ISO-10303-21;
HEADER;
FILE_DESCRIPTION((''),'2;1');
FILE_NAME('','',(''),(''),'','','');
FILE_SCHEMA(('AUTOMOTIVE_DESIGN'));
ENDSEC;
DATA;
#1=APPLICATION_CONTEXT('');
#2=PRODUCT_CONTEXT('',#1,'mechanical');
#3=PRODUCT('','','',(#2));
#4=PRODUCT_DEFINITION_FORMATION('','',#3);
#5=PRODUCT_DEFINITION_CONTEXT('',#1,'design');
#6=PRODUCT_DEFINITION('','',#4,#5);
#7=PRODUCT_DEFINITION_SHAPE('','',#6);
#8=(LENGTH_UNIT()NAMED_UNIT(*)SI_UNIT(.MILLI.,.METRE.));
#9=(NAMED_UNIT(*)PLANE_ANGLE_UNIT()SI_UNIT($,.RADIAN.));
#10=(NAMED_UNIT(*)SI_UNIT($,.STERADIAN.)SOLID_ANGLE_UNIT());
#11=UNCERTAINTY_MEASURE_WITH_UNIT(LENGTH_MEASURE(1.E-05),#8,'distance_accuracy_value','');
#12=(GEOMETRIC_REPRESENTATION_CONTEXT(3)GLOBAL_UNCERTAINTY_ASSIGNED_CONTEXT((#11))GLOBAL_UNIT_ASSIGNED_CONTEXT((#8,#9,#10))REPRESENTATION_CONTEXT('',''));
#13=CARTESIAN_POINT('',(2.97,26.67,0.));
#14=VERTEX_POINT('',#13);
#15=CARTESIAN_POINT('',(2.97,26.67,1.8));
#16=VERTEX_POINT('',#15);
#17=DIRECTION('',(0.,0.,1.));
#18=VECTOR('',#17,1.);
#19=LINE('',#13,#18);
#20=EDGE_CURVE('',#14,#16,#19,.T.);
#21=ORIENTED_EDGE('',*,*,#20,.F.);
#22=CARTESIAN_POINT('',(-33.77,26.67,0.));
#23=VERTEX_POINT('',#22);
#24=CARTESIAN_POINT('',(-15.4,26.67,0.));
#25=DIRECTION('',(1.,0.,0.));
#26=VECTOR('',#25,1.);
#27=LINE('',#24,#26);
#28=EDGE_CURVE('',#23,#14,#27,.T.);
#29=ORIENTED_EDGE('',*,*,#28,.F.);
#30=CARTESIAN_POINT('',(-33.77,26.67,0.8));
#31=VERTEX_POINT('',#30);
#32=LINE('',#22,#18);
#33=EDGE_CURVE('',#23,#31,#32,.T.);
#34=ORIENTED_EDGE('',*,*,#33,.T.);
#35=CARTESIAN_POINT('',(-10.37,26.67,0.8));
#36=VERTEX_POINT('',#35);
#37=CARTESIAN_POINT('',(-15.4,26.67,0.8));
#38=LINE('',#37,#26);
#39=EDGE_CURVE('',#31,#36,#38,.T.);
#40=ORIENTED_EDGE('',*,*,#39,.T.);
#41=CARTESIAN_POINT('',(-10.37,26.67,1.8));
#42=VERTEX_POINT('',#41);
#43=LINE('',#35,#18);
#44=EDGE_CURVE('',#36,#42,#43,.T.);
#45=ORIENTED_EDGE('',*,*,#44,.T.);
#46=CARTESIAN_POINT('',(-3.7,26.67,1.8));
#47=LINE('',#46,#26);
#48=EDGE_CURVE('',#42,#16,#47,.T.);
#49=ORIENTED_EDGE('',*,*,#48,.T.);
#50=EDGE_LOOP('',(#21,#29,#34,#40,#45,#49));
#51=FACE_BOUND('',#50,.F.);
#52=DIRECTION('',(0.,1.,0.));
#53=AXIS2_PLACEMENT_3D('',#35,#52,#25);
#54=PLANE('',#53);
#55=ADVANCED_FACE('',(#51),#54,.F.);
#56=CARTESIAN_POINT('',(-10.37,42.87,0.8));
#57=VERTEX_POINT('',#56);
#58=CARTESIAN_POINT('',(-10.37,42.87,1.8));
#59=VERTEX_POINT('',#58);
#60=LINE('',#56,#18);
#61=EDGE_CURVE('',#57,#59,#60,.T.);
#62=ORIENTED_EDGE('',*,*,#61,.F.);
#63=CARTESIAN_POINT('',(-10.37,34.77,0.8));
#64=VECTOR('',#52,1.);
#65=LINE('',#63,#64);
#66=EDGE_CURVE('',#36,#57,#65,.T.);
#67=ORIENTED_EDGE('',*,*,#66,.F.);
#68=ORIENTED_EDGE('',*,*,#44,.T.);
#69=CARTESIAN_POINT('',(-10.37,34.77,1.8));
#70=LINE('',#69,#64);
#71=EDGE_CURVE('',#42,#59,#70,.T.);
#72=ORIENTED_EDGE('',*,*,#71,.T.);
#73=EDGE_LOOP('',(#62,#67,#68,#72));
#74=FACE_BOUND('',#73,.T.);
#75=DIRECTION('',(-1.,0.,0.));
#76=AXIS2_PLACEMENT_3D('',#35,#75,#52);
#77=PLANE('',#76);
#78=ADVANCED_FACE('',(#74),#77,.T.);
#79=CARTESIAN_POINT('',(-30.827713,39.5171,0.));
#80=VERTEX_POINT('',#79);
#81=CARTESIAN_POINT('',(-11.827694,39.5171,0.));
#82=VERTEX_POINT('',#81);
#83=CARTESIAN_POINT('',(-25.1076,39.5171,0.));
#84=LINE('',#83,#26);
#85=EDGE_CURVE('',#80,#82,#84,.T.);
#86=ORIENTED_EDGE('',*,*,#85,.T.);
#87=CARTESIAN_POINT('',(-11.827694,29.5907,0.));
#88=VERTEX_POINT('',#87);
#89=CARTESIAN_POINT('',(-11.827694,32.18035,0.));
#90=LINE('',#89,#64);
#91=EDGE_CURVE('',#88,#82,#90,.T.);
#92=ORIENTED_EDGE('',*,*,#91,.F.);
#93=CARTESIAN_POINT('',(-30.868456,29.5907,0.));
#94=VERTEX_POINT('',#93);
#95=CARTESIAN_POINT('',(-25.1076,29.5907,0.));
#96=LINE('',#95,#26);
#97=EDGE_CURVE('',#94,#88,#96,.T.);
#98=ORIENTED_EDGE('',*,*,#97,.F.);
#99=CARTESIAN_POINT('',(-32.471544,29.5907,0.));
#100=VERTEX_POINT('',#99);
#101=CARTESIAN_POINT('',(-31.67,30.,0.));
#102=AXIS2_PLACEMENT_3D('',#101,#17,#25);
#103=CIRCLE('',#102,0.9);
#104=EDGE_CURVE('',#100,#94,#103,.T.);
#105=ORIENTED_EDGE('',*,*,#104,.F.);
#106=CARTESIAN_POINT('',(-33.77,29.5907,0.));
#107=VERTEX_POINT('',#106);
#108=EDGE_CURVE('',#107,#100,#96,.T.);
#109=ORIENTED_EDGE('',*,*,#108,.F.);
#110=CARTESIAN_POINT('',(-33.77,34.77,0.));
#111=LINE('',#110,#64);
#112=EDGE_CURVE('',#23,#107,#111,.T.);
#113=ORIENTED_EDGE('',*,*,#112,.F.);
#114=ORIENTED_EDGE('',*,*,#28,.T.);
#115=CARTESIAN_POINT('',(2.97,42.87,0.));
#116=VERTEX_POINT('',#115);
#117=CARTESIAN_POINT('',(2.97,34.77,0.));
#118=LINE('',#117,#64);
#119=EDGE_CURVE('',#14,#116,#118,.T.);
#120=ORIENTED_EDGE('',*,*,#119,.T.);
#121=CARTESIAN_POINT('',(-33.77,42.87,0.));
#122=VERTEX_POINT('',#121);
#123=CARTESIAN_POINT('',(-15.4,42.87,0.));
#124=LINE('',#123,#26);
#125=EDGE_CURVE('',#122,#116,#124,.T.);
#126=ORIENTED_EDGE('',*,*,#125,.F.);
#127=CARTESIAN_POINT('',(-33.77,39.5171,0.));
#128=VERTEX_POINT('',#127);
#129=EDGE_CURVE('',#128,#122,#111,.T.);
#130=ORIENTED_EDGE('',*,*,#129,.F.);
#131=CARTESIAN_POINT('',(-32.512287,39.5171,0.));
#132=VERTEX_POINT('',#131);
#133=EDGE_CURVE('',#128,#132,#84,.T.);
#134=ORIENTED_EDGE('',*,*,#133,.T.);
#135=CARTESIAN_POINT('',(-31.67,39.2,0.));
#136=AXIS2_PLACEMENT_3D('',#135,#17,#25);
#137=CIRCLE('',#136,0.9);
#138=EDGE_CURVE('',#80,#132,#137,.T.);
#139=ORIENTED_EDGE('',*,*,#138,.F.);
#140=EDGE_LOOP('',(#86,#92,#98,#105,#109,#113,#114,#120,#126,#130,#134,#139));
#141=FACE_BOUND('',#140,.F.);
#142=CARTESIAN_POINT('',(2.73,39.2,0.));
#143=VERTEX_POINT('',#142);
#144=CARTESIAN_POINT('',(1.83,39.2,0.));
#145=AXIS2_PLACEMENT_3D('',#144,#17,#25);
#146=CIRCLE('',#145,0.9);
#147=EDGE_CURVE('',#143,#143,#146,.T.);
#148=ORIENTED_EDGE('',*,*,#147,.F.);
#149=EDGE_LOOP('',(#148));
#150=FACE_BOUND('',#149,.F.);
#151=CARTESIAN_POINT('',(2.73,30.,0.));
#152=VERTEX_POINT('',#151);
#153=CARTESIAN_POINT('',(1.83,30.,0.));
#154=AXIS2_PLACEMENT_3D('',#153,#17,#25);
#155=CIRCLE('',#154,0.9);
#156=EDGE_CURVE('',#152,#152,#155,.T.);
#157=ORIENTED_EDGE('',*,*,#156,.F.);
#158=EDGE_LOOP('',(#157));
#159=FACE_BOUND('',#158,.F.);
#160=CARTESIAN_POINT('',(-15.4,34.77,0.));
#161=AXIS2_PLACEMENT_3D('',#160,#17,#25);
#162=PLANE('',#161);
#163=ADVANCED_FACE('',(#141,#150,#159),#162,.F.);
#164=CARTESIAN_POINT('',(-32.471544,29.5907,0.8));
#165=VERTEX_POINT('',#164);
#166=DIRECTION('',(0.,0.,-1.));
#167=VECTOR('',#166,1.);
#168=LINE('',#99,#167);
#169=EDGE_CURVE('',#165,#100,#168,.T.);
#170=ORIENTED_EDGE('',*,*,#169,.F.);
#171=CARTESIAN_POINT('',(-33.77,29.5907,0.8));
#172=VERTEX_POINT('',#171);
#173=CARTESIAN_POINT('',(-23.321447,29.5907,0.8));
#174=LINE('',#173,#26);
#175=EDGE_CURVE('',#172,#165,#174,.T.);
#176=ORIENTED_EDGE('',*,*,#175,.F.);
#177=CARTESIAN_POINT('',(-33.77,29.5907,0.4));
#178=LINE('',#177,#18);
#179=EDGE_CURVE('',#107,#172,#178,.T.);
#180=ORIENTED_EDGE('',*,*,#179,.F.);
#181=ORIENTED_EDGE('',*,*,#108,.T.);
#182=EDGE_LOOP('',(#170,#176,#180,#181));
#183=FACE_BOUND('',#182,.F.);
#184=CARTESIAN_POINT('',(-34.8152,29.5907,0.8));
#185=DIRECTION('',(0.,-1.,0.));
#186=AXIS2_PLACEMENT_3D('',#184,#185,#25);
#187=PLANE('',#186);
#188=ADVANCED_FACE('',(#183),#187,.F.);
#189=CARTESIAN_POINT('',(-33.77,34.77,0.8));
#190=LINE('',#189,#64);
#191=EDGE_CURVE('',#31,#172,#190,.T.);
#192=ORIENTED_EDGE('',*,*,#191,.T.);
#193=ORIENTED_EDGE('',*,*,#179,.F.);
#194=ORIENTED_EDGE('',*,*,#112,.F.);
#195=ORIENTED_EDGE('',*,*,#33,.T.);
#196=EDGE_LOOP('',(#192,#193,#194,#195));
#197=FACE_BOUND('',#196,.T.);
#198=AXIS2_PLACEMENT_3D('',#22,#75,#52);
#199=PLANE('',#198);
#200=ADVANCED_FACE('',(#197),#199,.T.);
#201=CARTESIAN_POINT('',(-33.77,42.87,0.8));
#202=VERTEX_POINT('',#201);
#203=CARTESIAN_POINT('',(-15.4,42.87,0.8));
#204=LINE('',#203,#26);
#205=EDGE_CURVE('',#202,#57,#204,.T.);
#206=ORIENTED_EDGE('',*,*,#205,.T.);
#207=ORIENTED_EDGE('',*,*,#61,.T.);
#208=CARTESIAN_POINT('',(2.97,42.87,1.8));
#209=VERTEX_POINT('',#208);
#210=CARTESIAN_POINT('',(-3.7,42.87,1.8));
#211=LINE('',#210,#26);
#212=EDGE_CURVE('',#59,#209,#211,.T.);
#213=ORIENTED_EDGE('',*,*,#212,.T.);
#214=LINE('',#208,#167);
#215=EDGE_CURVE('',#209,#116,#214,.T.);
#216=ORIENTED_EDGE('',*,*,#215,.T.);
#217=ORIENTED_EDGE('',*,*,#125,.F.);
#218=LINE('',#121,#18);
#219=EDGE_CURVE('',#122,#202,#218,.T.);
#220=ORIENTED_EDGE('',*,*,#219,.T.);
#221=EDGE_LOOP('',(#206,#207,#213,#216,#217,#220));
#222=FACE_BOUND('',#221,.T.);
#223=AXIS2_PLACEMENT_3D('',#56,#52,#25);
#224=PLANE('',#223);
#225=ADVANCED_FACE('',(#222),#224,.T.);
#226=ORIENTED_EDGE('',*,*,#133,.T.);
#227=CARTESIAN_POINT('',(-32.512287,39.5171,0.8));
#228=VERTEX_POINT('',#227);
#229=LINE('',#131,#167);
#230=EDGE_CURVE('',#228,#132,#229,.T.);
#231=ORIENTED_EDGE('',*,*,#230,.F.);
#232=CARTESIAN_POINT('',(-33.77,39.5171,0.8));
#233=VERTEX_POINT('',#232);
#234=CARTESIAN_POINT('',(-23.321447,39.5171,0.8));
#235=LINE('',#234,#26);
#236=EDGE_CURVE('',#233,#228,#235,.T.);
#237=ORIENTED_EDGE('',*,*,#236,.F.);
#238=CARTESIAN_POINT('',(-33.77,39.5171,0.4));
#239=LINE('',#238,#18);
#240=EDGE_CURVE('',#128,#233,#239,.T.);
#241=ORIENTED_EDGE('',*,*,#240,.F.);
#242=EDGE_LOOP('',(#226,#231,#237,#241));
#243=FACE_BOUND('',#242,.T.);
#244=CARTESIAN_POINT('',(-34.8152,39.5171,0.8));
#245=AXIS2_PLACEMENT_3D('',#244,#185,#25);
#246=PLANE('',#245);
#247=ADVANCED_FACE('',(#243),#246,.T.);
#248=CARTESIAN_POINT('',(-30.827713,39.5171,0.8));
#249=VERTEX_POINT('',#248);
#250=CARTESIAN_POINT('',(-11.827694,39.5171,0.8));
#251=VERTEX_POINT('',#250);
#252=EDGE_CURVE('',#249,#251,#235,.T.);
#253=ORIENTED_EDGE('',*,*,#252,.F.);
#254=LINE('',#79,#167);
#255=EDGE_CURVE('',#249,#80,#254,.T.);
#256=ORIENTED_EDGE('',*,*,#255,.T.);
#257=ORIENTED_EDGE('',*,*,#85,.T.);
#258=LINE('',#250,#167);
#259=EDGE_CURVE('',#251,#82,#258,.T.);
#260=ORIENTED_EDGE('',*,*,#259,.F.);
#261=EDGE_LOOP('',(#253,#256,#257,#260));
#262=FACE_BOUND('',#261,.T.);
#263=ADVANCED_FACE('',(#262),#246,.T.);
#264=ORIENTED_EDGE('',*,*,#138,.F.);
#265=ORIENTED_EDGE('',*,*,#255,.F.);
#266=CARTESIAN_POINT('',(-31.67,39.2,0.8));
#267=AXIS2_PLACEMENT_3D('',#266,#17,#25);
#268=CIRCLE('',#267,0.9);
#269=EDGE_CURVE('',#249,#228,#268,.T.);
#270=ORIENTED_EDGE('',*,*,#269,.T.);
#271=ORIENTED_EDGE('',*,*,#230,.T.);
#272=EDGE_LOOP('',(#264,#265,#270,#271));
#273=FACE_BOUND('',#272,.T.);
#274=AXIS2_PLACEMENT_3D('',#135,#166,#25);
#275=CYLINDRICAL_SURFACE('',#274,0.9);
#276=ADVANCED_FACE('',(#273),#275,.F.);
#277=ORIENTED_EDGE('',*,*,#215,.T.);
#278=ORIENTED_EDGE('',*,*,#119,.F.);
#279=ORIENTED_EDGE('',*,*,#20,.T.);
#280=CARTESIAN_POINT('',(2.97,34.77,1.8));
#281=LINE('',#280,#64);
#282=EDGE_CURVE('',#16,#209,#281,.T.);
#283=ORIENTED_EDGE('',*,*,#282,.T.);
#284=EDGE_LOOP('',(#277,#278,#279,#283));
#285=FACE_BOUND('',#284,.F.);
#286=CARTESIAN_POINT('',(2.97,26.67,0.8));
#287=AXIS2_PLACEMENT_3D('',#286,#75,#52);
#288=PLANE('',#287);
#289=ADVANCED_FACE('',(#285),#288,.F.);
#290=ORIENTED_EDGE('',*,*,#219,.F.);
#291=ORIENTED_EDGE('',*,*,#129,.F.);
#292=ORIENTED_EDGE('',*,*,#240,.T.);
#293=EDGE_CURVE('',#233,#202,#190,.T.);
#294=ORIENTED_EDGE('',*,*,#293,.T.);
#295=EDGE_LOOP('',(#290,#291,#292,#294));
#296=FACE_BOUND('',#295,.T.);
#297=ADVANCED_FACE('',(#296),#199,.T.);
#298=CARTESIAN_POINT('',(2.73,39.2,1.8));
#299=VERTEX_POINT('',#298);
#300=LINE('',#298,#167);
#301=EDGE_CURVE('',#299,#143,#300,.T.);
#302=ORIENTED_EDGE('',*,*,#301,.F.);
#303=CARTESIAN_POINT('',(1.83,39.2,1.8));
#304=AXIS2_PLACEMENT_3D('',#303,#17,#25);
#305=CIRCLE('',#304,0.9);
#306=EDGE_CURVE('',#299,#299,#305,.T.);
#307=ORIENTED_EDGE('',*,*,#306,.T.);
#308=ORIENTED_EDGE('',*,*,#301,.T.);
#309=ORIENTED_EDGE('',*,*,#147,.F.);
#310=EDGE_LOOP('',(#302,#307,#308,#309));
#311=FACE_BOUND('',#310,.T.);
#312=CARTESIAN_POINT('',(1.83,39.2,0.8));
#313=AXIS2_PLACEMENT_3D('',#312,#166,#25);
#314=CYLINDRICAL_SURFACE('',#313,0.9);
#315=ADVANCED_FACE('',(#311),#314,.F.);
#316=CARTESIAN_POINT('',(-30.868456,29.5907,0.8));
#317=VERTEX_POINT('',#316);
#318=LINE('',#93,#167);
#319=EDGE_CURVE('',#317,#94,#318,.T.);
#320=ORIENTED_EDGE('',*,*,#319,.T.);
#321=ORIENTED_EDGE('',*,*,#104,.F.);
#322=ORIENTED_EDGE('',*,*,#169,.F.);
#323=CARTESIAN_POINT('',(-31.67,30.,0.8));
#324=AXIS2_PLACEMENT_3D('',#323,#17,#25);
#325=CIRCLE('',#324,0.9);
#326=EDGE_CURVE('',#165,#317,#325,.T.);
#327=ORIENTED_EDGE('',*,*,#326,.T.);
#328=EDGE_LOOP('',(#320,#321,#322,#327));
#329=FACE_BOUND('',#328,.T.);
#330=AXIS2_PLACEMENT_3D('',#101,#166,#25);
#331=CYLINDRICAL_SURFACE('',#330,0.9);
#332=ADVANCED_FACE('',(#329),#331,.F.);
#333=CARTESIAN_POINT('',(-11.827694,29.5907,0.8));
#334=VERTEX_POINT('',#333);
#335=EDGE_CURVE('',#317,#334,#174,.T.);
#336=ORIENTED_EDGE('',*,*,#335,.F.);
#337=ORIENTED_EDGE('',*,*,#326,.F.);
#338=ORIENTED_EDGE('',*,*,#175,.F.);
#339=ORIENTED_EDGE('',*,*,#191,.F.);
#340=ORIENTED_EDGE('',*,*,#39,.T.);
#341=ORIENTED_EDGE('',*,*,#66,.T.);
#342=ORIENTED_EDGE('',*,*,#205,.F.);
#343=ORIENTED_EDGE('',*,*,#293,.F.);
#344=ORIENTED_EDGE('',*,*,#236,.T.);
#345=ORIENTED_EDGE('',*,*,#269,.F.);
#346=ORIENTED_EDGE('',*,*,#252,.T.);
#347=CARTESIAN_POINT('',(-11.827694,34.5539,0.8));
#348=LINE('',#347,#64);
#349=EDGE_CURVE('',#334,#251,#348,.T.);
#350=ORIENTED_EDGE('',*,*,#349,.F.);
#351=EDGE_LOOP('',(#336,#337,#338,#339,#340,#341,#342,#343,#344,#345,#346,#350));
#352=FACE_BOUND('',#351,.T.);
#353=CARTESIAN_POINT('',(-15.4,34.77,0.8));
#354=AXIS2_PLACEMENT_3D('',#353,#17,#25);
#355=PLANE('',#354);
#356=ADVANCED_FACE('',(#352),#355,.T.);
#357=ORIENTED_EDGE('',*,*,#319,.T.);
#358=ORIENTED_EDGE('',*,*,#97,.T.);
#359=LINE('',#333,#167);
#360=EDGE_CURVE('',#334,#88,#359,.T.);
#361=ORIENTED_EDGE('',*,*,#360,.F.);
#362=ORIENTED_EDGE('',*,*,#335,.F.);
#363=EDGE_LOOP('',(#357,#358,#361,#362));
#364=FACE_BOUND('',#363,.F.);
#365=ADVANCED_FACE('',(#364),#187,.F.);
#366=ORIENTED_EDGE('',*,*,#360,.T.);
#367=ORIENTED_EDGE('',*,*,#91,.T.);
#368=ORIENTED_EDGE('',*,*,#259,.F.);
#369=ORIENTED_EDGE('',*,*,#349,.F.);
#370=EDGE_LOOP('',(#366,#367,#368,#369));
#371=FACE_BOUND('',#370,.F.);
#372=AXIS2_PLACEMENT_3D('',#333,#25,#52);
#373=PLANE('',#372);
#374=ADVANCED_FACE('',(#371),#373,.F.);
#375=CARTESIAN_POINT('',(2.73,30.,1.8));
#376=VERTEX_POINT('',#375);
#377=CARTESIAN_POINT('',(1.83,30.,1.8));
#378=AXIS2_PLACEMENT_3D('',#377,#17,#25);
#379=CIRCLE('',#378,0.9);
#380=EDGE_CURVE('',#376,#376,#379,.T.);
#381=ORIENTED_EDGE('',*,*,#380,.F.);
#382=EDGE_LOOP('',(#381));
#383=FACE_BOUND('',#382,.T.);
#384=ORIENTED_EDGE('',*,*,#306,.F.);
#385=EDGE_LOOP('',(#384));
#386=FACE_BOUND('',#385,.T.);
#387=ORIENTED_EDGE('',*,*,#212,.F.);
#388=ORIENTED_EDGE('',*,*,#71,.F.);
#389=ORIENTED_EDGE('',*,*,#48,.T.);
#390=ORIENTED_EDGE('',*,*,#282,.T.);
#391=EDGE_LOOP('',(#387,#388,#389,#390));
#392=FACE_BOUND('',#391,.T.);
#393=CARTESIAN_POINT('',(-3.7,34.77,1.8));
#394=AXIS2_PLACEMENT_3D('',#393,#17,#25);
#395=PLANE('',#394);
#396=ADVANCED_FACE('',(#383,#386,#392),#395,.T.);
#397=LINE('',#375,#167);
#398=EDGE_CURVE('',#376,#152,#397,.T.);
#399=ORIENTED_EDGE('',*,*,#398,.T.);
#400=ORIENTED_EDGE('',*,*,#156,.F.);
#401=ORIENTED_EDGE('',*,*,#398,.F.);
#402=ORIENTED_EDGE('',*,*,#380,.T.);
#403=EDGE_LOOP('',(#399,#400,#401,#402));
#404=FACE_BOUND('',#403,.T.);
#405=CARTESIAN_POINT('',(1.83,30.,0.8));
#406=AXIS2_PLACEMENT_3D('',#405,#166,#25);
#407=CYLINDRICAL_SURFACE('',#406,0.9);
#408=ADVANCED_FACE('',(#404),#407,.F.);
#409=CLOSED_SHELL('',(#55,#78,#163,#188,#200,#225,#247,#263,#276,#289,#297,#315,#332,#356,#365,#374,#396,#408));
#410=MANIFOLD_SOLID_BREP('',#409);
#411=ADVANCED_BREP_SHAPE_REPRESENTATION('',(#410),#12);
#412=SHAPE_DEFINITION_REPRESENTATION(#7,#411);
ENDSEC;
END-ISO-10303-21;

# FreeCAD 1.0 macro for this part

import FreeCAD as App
import Part
import Sketcher

V = App.Vector

doc = App.newDocument("Part")
body = doc.addObject("PartDesign::Body", "Body")

# Sketch on XY plane
sketch1 = body.newObject("Sketcher::SketchObject", "Sketch")
sketch1.AttachmentSupport = (doc.getObject("XY_Plane"), [""])
sketch1.MapMode = "FlatFace"
sketch1.addGeometry([
    Part.LineSegment(V(-33.8, 42.9, 0), V(-33.8, 26.7, 0)),  # 0
    Part.LineSegment(V(-33.8, 26.7, 0), V(3, 26.7, 0)),  # 1
    Part.LineSegment(V(3, 26.7, 0), V(3, 42.9, 0)),  # 2
    Part.LineSegment(V(3, 42.9, 0), V(-33.8, 42.9, 0)),  # 3
    Part.Circle(V(-31.7, 30, 0), V(0, 0, 1), 0.9),  # 4
    Part.Circle(V(1.8, 30, 0), V(0, 0, 1), 0.9),  # 5
    Part.Circle(V(-31.7, 39.2, 0), V(0, 0, 1), 0.9),  # 6
    Part.Circle(V(1.8, 39.2, 0), V(0, 0, 1), 0.9),  # 7
], False)
sketch1.addConstraint([
    Sketcher.Constraint("Coincident", 0, 2, 1, 1),
    Sketcher.Constraint("Coincident", 1, 2, 2, 1),
    Sketcher.Constraint("Coincident", 2, 2, 3, 1),
    Sketcher.Constraint("Coincident", 3, 2, 0, 1),
    Sketcher.Constraint("Vertical", 0),
    Sketcher.Constraint("Horizontal", 1),
    Sketcher.Constraint("Vertical", 2),
    Sketcher.Constraint("Horizontal", 3),
    Sketcher.Constraint("Equal", 4, 5),
    Sketcher.Constraint("Equal", 5, 6),
    Sketcher.Constraint("Equal", 6, 7),
    Sketcher.Constraint("Horizontal", 4, 3, 5, 3),
    Sketcher.Constraint("Horizontal", 6, 3, 7, 3),
    Sketcher.Constraint("Vertical", 4, 3, 6, 3),
    Sketcher.Constraint("Vertical", 5, 3, 7, 3),
    Sketcher.Constraint("Diameter", 4, 1.8),
    Sketcher.Constraint("DistanceY", 0, 2, 0, 1, 16.2),
    Sketcher.Constraint("DistanceY", -1, 1, 4, 3, 30.0),
    Sketcher.Constraint("DistanceX", 1, 1, 1, 2, 36.74),
    Sketcher.Constraint("DistanceY", -1, 1, 6, 3, 39.2),
    Sketcher.Constraint("DistanceX", 4, 3, 5, 3, 33.5),
    Sketcher.Constraint("DistanceX", 0, 2, 4, 3, 2.1),
    Sketcher.Constraint("DistanceX", 4, 3, -1, 1, 31.67),
    Sketcher.Constraint("DistanceY", -1, 1, 0, 2, 26.67),
])
pad1 = body.newObject("PartDesign::Pad", "Pad")
pad1.Profile = sketch1
pad1.Length = 0.8

# Sketch on XY plane
sketch2 = body.newObject("Sketcher::SketchObject", "Sketch001")
sketch2.AttachmentSupport = (doc.getObject("XY_Plane"), [""])
sketch2.MapMode = "FlatFace"
sketch2.AttachmentOffset = App.Placement(V(0, 0, 0.8), App.Rotation())
sketch2.addGeometry([
    Part.LineSegment(V(-10.4, 42.9, 0), V(-10.4, 26.7, 0)),  # 0
    Part.LineSegment(V(-10.4, 26.7, 0), V(3, 26.7, 0)),  # 1
    Part.LineSegment(V(3, 26.7, 0), V(3, 42.9, 0)),  # 2
    Part.LineSegment(V(3, 42.9, 0), V(-10.4, 42.9, 0)),  # 3
    Part.Circle(V(1.8, 30, 0), V(0, 0, 1), 0.9),  # 4
    Part.Circle(V(1.8, 39.2, 0), V(0, 0, 1), 0.9),  # 5
], False)
sketch2.addConstraint([
    Sketcher.Constraint("Coincident", 0, 2, 1, 1),
    Sketcher.Constraint("Coincident", 1, 2, 2, 1),
    Sketcher.Constraint("Coincident", 2, 2, 3, 1),
    Sketcher.Constraint("Coincident", 3, 2, 0, 1),
    Sketcher.Constraint("Vertical", 0),
    Sketcher.Constraint("Horizontal", 1),
    Sketcher.Constraint("Vertical", 2),
    Sketcher.Constraint("Horizontal", 3),
    Sketcher.Constraint("Equal", 4, 5),
    Sketcher.Constraint("Vertical", 4, 3, 5, 3),
    Sketcher.Constraint("Diameter", 4, 1.8),
    Sketcher.Constraint("DistanceY", 0, 2, 0, 1, 16.2),
    Sketcher.Constraint("DistanceY", -1, 1, 4, 3, 30.0),
    Sketcher.Constraint("DistanceX", 1, 1, 1, 2, 13.34),
    Sketcher.Constraint("DistanceY", -1, 1, 5, 3, 39.2),
    Sketcher.Constraint("DistanceX", 0, 2, 4, 3, 12.2),
    Sketcher.Constraint("DistanceX", -1, 1, 4, 3, 1.83),
    Sketcher.Constraint("DistanceY", -1, 1, 0, 2, 26.67),
])
pad2 = body.newObject("PartDesign::Pad", "Pad001")
pad2.Profile = sketch2
pad2.Length = 1

# Sketch on XY plane
sketch3 = body.newObject("Sketcher::SketchObject", "Sketch002")
sketch3.AttachmentSupport = (doc.getObject("XY_Plane"), [""])
sketch3.MapMode = "FlatFace"
sketch3.AttachmentOffset = App.Placement(V(0, 0, 0.8), App.Rotation())
sketch3.addGeometry([
    Part.LineSegment(V(-35, 40, 0), V(-35, 30, 0)),
    Part.LineSegment(V(-35, 30, 0), V(-12, 30, 0)),
    Part.LineSegment(V(-12, 30, 0), V(-12, 40, 0)),
    Part.LineSegment(V(-12, 40, 0), V(-35, 40, 0)),
], False)
sketch3.addConstraint([
    Sketcher.Constraint("Coincident", 0, 2, 1, 1),
    Sketcher.Constraint("Coincident", 1, 2, 2, 1),
    Sketcher.Constraint("Coincident", 2, 2, 3, 1),
    Sketcher.Constraint("Coincident", 3, 2, 0, 1),
    Sketcher.Constraint("Vertical", 0),
    Sketcher.Constraint("Horizontal", 1),
    Sketcher.Constraint("Vertical", 2),
    Sketcher.Constraint("Horizontal", 3),
    Sketcher.Constraint("DistanceY", 0, 2, 0, 1, 9.9264),
    Sketcher.Constraint("DistanceX", 0, 2, -1, 1, 34.8152),
    Sketcher.Constraint("DistanceY", -1, 1, 0, 2, 29.5907),
    Sketcher.Constraint("DistanceX", 1, 1, 1, 2, 22.987506),
])
pocket1 = body.newObject("PartDesign::Pocket", "Pocket")
pocket1.Profile = sketch3
pocket1.Type = "ThroughAll"

doc.recompute()
